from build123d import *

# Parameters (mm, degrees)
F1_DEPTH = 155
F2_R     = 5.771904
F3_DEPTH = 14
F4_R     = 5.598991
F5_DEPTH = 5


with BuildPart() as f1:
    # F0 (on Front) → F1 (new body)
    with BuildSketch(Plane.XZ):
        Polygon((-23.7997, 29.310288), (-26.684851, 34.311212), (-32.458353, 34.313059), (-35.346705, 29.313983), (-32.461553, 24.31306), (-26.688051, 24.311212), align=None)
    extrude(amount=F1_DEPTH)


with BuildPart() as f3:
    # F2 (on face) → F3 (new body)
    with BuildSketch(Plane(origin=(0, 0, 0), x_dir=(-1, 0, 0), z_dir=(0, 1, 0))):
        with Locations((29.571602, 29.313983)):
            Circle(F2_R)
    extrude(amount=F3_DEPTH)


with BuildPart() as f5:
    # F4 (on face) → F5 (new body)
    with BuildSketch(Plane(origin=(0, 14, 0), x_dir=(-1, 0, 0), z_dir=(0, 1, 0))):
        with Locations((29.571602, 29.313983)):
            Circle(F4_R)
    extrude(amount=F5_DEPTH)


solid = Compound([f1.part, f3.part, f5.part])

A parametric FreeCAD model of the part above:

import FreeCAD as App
import Part
import Sketcher

V = App.Vector
Q = App.Units.Quantity

doc = App.newDocument("Part")
body = doc.addObject("PartDesign::Body", "Body")

# Sketch on XZ plane
sketch1 = body.newObject("Sketcher::SketchObject", "Sketch")
sketch1.AttachmentSupport = (doc.getObject("XZ_Plane"), [""])
sketch1.MapMode = "FlatFace"
sketch1.addGeometry(Part.LineSegment(V(-24, 29, 0), V(-27, 34, 0)), False)
sketch1.addGeometry(Part.LineSegment(V(-27, 34, 0), V(-32, 34, 0)), False)
sketch1.addGeometry(Part.LineSegment(V(-32, 34, 0), V(-35, 29, 0)), False)
sketch1.addGeometry(Part.LineSegment(V(-35, 29, 0), V(-32, 24, 0)), False)
sketch1.addGeometry(Part.LineSegment(V(-32, 24, 0), V(-27, 24, 0)), False)
sketch1.addGeometry(Part.LineSegment(V(-27, 24, 0), V(-24, 29, 0)), False)
sketch1.addConstraint(Sketcher.Constraint("Coincident", 0, 2, 1, 1))
sketch1.addConstraint(Sketcher.Constraint("Coincident", 1, 2, 2, 1))
sketch1.addConstraint(Sketcher.Constraint("Coincident", 2, 2, 3, 1))
sketch1.addConstraint(Sketcher.Constraint("Coincident", 3, 2, 4, 1))
sketch1.addConstraint(Sketcher.Constraint("Coincident", 4, 2, 5, 1))
sketch1.addConstraint(Sketcher.Constraint("Coincident", 5, 2, 0, 1))
sketch1.addConstraint(Sketcher.Constraint("Parallel", 0, 3))
sketch1.addConstraint(Sketcher.Constraint("Parallel", 1, 4))
sketch1.addConstraint(Sketcher.Constraint("Parallel", 2, 5))
sketch1.addConstraint(Sketcher.Constraint("Equal", 0, 1))
sketch1.addConstraint(Sketcher.Constraint("Equal", 1, 2))
sketch1.addConstraint(Sketcher.Constraint("Equal", 2, 3))
sketch1.addConstraint(Sketcher.Constraint("DistanceY", 3, 2, 1, 2, Q("9.999999 mm")))
sketch1.addConstraint(Sketcher.Constraint("DistanceX", 5, 2, -1, 1, Q("23.7997 mm")))
sketch1.addConstraint(Sketcher.Constraint("DistanceX", 3, 2, 1, 2, Q("0.0032 mm")))
sketch1.addConstraint(Sketcher.Constraint("DistanceX", 0, 2, -1, 1, Q("26.684851 mm")))
sketch1.addConstraint(Sketcher.Constraint("DistanceY", -1, 1, 0, 2, Q("34.311212 mm")))
sketch1.addConstraint(Sketcher.Constraint("DistanceY", -1, 1, 1, 2, Q("34.313059 mm")))
pad1 = body.newObject("PartDesign::Pad", "Pad")
pad1.Profile = sketch1
pad1.Length = 155
body2 = doc.addObject("PartDesign::Body", "Body001")

# Sketch on XZ plane
sketch2 = body2.newObject("Sketcher::SketchObject", "Sketch001")
sketch2.AttachmentSupport = (doc.getObject("XZ_Plane001"), [""])
sketch2.MapMode = "FlatFace"
sketch2.addGeometry(Part.Circle(V(-30, 29, 0), V(0, 0, 1), 6), False)
sketch2.addConstraint(Sketcher.Constraint("Diameter", 0, Q("11.543808 mm")))
sketch2.addConstraint(Sketcher.Constraint("DistanceX", 0, 3, -1, 1, Q("29.571602 mm")))
sketch2.addConstraint(Sketcher.Constraint("DistanceY", -1, 1, 0, 3, Q("29.313983 mm")))
pad2 = body2.newObject("PartDesign::Pad", "Pad001")
pad2.Profile = sketch2
pad2.Length = 14
pad2.Reversed = True
body3 = doc.addObject("PartDesign::Body", "Body002")

# Sketch on XZ plane
sketch3 = body3.newObject("Sketcher::SketchObject", "Sketch002")
sketch3.AttachmentSupport = (doc.getObject("XZ_Plane002"), [""])
sketch3.MapMode = "FlatFace"
sketch3.AttachmentOffset = App.Placement(V(0, 0, -14), App.Rotation())
sketch3.addGeometry(Part.Circle(V(-30, 29, 0), V(0, 0, 1), 6), False)
sketch3.addConstraint(Sketcher.Constraint("Diameter", 0, Q("11.197982 mm")))
sketch3.addConstraint(Sketcher.Constraint("DistanceX", 0, 3, -1, 1, Q("29.571602 mm")))
sketch3.addConstraint(Sketcher.Constraint("DistanceY", -1, 1, 0, 3, Q("29.313983 mm")))
pad3 = body3.newObject("PartDesign::Pad", "Pad002")
pad3.Profile = sketch3
pad3.Length = 5
pad3.Reversed = True

doc.recompute()
